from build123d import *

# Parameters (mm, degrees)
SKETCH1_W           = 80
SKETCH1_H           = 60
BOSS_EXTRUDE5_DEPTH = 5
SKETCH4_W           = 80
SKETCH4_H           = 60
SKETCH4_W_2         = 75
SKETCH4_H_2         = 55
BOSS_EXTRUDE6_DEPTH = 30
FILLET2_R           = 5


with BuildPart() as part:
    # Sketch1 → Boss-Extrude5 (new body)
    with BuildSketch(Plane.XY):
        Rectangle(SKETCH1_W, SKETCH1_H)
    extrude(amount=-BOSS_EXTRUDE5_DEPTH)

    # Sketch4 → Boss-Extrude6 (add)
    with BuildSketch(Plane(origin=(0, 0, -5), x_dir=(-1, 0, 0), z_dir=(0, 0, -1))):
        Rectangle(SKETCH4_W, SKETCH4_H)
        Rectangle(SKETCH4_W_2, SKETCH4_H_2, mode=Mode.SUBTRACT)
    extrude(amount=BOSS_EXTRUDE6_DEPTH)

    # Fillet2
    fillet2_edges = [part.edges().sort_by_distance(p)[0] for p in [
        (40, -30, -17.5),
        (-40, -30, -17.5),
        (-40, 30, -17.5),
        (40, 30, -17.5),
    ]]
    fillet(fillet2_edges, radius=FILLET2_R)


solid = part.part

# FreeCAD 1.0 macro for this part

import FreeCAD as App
import Part
import Sketcher


def edges_at(feature, points):
    """Names of the edges that pass closest to the given points."""
    edges = feature.Shape.Edges
    near = lambda p: min(range(len(edges)), key=lambda i: edges[i].distToShape(Part.Vertex(*p))[0])
    return sorted({f"Edge{near(p) + 1}" for p in points})


def add_polygon(sketch, points):
    """Adds a closed chain of lines whose ends are joined by coincident constraints."""
    first, n = sketch.GeometryCount, len(points)
    for a, b in zip(points, points[1:] + points[:1]):
        sketch.addGeometry(Part.LineSegment(App.Vector(*a, 0), App.Vector(*b, 0)), False)
    for i in range(n):
        sketch.addConstraint(Sketcher.Constraint("Coincident", first + i, 2, first + (i + 1) % n, 1))

doc = App.newDocument("Part")
body = doc.addObject("PartDesign::Body", "Body")

sketch1 = body.newObject("Sketcher::SketchObject", "Sketch")
sketch1.AttachmentSupport = (doc.getObject("XY_Plane"), [""])
sketch1.MapMode = "FlatFace"
add_polygon(sketch1, [(-40, 30), (-40, -30), (40, -30), (40, 30)])
sketch1.addConstraint([
    Sketcher.Constraint("Vertical", 0),
    Sketcher.Constraint("Horizontal", 1),
    Sketcher.Constraint("Vertical", 2),
    Sketcher.Constraint("Horizontal", 3),
    Sketcher.Constraint("Symmetric", 0, 2, 2, 2, -1, 1),
    Sketcher.Constraint("DistanceX", 1, 1, 1, 2, 80.0),
    Sketcher.Constraint("DistanceY", 0, 2, 0, 1, 60.0),
])
pad1 = body.newObject("PartDesign::Pad", "Pad")
pad1.Profile = sketch1
pad1.Length = 5
pad1.Reversed = True

sketch2 = body.newObject("Sketcher::SketchObject", "Sketch001")
sketch2.AttachmentSupport = (doc.getObject("XY_Plane"), [""])
sketch2.MapMode = "FlatFace"
sketch2.AttachmentOffset = App.Placement(App.Vector(0, 0, -5), App.Rotation())
add_polygon(sketch2, [(40, 30), (40, -30), (-40, -30), (-40, 30)])
add_polygon(sketch2, [(-38, -28), (38, -28), (38, 28), (-38, 28)])
sketch2.addConstraint([
    Sketcher.Constraint("Vertical", 0),
    Sketcher.Constraint("Horizontal", 1),
    Sketcher.Constraint("Vertical", 2),
    Sketcher.Constraint("Horizontal", 3),
    Sketcher.Constraint("Horizontal", 4),
    Sketcher.Constraint("Vertical", 5),
    Sketcher.Constraint("Horizontal", 6),
    Sketcher.Constraint("Vertical", 7),
    Sketcher.Constraint("Symmetric", 0, 2, 2, 2, -1, 1),
    Sketcher.Constraint("Symmetric", 4, 2, 6, 2, -1, 1),
    Sketcher.Constraint("DistanceX", 1, 2, 1, 1, 80.0),
    Sketcher.Constraint("DistanceX", 4, 1, 4, 2, 75.0),
    Sketcher.Constraint("DistanceY", 0, 2, 0, 1, 60.0),
    Sketcher.Constraint("DistanceY", 5, 1, 5, 2, 55.0),
])
pad2 = body.newObject("PartDesign::Pad", "Pad001")
pad2.Profile = sketch2
pad2.Length = 30
pad2.Reversed = True
doc.recompute()

fillet = body.newObject("PartDesign::Fillet", "Fillet")
fillet.Base = (pad2, edges_at(pad2, [
    (40, -30, -17.5),
    (-40, -30, -17.5),
    (-40, 30, -17.5),
    (40, 30, -17.5),
]))
fillet.Radius = 5

doc.recompute()
